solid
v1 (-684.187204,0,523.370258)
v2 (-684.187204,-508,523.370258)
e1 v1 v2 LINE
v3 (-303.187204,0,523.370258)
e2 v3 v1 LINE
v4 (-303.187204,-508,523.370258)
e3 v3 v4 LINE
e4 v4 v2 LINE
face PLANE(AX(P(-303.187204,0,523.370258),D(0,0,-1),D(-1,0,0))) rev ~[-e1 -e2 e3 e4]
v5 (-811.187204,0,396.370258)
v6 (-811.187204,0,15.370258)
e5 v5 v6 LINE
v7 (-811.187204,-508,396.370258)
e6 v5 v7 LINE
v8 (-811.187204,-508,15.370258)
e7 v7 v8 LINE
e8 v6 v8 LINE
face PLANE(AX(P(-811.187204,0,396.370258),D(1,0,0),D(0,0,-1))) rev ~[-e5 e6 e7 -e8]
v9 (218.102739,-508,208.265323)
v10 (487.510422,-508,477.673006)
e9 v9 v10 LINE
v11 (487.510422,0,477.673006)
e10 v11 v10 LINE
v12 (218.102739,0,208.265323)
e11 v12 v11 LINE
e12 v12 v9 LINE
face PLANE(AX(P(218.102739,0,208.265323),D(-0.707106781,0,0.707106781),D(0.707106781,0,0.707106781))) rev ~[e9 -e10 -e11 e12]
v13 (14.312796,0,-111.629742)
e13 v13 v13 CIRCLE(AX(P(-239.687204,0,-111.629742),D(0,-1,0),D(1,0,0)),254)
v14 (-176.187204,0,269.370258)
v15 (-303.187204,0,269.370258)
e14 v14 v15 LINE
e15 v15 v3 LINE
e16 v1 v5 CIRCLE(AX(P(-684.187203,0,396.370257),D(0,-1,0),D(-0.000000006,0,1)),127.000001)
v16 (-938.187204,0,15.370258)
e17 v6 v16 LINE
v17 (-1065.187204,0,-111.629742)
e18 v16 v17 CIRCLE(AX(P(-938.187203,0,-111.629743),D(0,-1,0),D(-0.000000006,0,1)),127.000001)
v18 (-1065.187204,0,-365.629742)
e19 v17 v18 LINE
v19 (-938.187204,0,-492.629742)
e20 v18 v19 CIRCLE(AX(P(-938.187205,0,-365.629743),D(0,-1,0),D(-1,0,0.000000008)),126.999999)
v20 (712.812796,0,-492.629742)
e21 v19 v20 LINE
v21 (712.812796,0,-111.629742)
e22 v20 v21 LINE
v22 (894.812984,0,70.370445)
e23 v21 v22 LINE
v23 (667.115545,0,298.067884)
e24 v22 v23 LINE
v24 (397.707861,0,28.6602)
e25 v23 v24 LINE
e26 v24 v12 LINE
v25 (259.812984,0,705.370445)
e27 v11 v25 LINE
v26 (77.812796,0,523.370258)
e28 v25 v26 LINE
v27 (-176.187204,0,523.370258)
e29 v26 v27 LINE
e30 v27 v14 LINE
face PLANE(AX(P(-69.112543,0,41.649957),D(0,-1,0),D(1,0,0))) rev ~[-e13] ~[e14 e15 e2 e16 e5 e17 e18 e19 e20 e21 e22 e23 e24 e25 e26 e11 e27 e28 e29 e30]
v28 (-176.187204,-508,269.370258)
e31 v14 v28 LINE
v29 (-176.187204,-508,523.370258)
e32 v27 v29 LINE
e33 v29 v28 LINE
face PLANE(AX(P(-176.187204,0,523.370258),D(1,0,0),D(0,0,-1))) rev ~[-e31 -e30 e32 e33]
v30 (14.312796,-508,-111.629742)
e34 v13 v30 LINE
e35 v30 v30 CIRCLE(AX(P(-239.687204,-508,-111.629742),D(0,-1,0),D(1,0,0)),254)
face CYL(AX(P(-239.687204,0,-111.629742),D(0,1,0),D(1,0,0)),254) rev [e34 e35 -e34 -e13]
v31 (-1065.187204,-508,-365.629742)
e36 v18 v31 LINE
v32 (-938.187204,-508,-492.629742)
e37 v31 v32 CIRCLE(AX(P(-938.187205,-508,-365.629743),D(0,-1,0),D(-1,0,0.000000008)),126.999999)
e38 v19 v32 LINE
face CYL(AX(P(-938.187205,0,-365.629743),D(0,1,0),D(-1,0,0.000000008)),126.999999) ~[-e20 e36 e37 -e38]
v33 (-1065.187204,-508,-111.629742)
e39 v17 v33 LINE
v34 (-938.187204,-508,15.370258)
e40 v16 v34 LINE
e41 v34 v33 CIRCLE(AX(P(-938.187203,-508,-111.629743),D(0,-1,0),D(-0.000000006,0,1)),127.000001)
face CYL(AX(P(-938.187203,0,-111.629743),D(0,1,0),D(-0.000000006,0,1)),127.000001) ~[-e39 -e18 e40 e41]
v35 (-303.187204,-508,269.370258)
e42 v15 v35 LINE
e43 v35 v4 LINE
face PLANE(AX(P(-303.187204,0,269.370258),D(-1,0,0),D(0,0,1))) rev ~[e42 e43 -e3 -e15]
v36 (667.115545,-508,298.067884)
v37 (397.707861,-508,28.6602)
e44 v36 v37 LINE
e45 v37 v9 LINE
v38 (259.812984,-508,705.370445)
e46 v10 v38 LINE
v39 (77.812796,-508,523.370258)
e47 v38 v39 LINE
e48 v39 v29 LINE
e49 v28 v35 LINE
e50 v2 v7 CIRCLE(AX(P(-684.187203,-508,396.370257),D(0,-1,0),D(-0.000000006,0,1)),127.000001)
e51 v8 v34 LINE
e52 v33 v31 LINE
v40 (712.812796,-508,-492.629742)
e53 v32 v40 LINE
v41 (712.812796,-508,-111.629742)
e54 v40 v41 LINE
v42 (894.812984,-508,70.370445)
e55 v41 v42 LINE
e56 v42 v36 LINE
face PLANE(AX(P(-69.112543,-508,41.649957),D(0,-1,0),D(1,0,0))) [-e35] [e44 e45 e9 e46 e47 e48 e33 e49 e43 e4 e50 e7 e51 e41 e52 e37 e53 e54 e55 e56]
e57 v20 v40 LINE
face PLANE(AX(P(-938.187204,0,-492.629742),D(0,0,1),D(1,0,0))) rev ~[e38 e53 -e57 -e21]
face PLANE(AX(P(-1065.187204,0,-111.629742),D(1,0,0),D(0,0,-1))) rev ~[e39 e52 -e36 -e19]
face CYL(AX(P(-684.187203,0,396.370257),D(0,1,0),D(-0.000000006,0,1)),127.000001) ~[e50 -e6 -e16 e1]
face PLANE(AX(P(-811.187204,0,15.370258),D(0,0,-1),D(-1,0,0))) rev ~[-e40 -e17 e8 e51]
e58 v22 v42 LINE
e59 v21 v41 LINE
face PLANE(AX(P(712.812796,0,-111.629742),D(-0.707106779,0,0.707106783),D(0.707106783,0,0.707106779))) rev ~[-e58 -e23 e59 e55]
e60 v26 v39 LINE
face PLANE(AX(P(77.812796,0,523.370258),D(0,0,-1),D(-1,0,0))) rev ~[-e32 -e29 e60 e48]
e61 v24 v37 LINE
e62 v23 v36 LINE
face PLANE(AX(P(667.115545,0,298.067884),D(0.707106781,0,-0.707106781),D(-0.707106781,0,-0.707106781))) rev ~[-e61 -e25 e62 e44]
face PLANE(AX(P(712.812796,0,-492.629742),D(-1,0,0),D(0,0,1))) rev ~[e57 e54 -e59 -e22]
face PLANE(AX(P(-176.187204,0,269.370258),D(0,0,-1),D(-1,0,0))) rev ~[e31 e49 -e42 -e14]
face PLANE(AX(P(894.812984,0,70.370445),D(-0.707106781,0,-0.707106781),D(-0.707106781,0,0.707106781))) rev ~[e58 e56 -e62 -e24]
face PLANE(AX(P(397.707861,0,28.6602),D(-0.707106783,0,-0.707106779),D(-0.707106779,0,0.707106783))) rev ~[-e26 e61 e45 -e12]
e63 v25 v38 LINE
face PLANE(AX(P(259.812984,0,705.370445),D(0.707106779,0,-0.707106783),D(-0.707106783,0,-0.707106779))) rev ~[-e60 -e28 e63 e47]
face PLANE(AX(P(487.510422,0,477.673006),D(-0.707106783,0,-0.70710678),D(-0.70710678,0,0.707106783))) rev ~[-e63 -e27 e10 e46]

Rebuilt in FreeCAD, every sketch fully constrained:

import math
import FreeCAD as App
import Part
import Sketcher
from FreeCAD import Vector
Q = App.Units.Quantity

doc = App.newDocument("Part")
body = doc.addObject("PartDesign::Body", "Body")

# Sketch on XZ plane
sketch1 = body.newObject("Sketcher::SketchObject", "Sketch")
sketch1.AttachmentSupport = (doc.getObject("XZ_Plane"), [""])
sketch1.MapMode = "FlatFace"
sketch1.addGeometry([
    Part.LineSegment(Vector(-303.187204, 269.370258, 0), Vector(-303.187204, 523.370258, 0)),  # 0
    Part.LineSegment(Vector(-303.187204, 523.370258, 0), Vector(-684.187204, 523.370258, 0)),  # 1
    Part.ArcOfCircle(Part.Circle(Vector(-684.187203, 396.370257, 0), Vector(0, 0, 1), 127.000001), math.radians(90), math.radians(180)),  # 2
    Part.LineSegment(Vector(-811.187204, 396.370258, 0), Vector(-811.187204, 15.370258, 0)),  # 3
    Part.LineSegment(Vector(-811.187204, 15.370258, 0), Vector(-938.187204, 15.370258, 0)),  # 4
    Part.ArcOfCircle(Part.Circle(Vector(-938.187203, -111.629743, 0), Vector(0, 0, 1), 127.000001), math.radians(90), math.radians(180)),  # 5
    Part.LineSegment(Vector(-1065.187204, -111.629742, 0), Vector(-1065.187204, -365.629742, 0)),  # 6
    Part.ArcOfCircle(Part.Circle(Vector(-938.187205, -365.629743, 0), Vector(0, 0, 1), 126.999999), math.radians(180), math.radians(270)),  # 7
    Part.LineSegment(Vector(-938.187204, -492.629742, 0), Vector(712.812796, -492.629742, 0)),  # 8
    Part.LineSegment(Vector(712.812796, -492.629742, 0), Vector(712.812796, -111.629742, 0)),  # 9
    Part.LineSegment(Vector(712.812796, -111.629742, 0), Vector(894.812984, 70.370445, 0)),  # 10
    Part.LineSegment(Vector(894.812984, 70.370445, 0), Vector(667.115545, 298.067884, 0)),  # 11
    Part.LineSegment(Vector(667.115545, 298.067884, 0), Vector(397.707861, 28.6602, 0)),  # 12
    Part.LineSegment(Vector(397.707861, 28.6602, 0), Vector(218.102739, 208.265323, 0)),  # 13
    Part.LineSegment(Vector(218.102739, 208.265323, 0), Vector(487.510422, 477.673006, 0)),  # 14
    Part.LineSegment(Vector(487.510422, 477.673006, 0), Vector(259.812984, 705.370445, 0)),  # 15
    Part.LineSegment(Vector(259.812984, 705.370445, 0), Vector(77.812796, 523.370258, 0)),  # 16
    Part.LineSegment(Vector(77.812796, 523.370258, 0), Vector(-176.187204, 523.370258, 0)),  # 17
    Part.LineSegment(Vector(-176.187204, 523.370258, 0), Vector(-176.187204, 269.370258, 0)),  # 18
    Part.LineSegment(Vector(-176.187204, 269.370258, 0), Vector(-303.187204, 269.370258, 0)),  # 19
    Part.Circle(Vector(-239.687204, -111.629742, 0), Vector(0, 0, 1), 254),  # 20
], False)
sketch1.addConstraint([
    Sketcher.Constraint("Coincident", 0, 2, 1, 1),
    Sketcher.Constraint("Tangent", 1, 2, 2, 1),
    Sketcher.Constraint("Tangent", 2, 2, 3, 1),
    Sketcher.Constraint("Coincident", 3, 2, 4, 1),
    Sketcher.Constraint("Tangent", 4, 2, 5, 1),
    Sketcher.Constraint("Tangent", 5, 2, 6, 1),
    Sketcher.Constraint("Tangent", 6, 2, 7, 1),
    Sketcher.Constraint("Tangent", 7, 2, 8, 1),
    Sketcher.Constraint("Coincident", 8, 2, 9, 1),
    Sketcher.Constraint("Coincident", 9, 2, 10, 1),
    Sketcher.Constraint("Coincident", 10, 2, 11, 1),
    Sketcher.Constraint("Coincident", 11, 2, 12, 1),
    Sketcher.Constraint("Coincident", 12, 2, 13, 1),
    Sketcher.Constraint("Coincident", 13, 2, 14, 1),
    Sketcher.Constraint("Coincident", 14, 2, 15, 1),
    Sketcher.Constraint("Coincident", 15, 2, 16, 1),
    Sketcher.Constraint("Coincident", 16, 2, 17, 1),
    Sketcher.Constraint("Coincident", 17, 2, 18, 1),
    Sketcher.Constraint("Coincident", 18, 2, 19, 1),
    Sketcher.Constraint("Coincident", 19, 2, 0, 1),
    Sketcher.Constraint("Vertical", 0),
    Sketcher.Constraint("Horizontal", 1),
    Sketcher.Constraint("Vertical", 3),
    Sketcher.Constraint("Horizontal", 4),
    Sketcher.Constraint("Vertical", 6),
    Sketcher.Constraint("Horizontal", 8),
    Sketcher.Constraint("Vertical", 9),
    Sketcher.Constraint("Horizontal", 17),
    Sketcher.Constraint("Vertical", 18),
    Sketcher.Constraint("Horizontal", 19),
    Sketcher.Constraint("Equal", 2, 5),
    Sketcher.Constraint("Equal", 5, 7),
    Sketcher.Constraint("Perpendicular", 10, 11),
    Sketcher.Constraint("Perpendicular", 11, 12),
    Sketcher.Constraint("Perpendicular", 12, 13),
    Sketcher.Constraint("Perpendicular", 13, 14),
    Sketcher.Constraint("Perpendicular", 14, 15),
    Sketcher.Constraint("Perpendicular", 15, 16),
    Sketcher.Constraint("Horizontal", 5, 3, 20, 3),
    Sketcher.Constraint("Horizontal", 5, 2, 9, 2),
    Sketcher.Constraint("Horizontal", 1, 2, 16, 2),
    Sketcher.Constraint("Equal", 4, 19),
    Sketcher.Constraint("Equal", 17, 0),
    Sketcher.Constraint("Equal", 1, 3),
    Sketcher.Constraint("Equal", 0, 6),
    Sketcher.Constraint("Equal", 3, 9),
    Sketcher.Constraint("Equal", 12, 14),
    Sketcher.Constraint("Equal", 11, 15),
    Sketcher.Constraint("Equal", 10, 16),
    Sketcher.Constraint("Diameter", 20, Q("20 in")),
    Sketcher.Constraint("Radius", 2, Q("5 in")),
    Sketcher.Constraint("DistanceX", 1, 2, 1, 1, Q("15 in")),
    Sketcher.Constraint("DistanceX", 4, 2, 4, 1, Q("5 in")),
    Sketcher.Constraint("DistanceX", 8, 1, 8, 2, Q("65 in")),
    Sketcher.Constraint("Distance", 12, Q("15 in")),
    Sketcher.Constraint("Distance", 13, Q("10 in")),
    Sketcher.Constraint("DistanceX", 2, 3, 20, 3, Q("17.5 in")),
    Sketcher.Constraint("DistanceY", -1, 1, 12, 2, Q("28.6602 mm")),
    Sketcher.Constraint("DistanceY", 20, 3, -1, 1, Q("111.629742 mm")),
    Sketcher.Constraint("DistanceX", -1, 1, 12, 2, Q("397.707861 mm")),
])
pad1 = body.newObject("PartDesign::Pad", "Pad")
pad1.Profile = sketch1
pad1.Length = Q("20 in")

doc.recompute()
